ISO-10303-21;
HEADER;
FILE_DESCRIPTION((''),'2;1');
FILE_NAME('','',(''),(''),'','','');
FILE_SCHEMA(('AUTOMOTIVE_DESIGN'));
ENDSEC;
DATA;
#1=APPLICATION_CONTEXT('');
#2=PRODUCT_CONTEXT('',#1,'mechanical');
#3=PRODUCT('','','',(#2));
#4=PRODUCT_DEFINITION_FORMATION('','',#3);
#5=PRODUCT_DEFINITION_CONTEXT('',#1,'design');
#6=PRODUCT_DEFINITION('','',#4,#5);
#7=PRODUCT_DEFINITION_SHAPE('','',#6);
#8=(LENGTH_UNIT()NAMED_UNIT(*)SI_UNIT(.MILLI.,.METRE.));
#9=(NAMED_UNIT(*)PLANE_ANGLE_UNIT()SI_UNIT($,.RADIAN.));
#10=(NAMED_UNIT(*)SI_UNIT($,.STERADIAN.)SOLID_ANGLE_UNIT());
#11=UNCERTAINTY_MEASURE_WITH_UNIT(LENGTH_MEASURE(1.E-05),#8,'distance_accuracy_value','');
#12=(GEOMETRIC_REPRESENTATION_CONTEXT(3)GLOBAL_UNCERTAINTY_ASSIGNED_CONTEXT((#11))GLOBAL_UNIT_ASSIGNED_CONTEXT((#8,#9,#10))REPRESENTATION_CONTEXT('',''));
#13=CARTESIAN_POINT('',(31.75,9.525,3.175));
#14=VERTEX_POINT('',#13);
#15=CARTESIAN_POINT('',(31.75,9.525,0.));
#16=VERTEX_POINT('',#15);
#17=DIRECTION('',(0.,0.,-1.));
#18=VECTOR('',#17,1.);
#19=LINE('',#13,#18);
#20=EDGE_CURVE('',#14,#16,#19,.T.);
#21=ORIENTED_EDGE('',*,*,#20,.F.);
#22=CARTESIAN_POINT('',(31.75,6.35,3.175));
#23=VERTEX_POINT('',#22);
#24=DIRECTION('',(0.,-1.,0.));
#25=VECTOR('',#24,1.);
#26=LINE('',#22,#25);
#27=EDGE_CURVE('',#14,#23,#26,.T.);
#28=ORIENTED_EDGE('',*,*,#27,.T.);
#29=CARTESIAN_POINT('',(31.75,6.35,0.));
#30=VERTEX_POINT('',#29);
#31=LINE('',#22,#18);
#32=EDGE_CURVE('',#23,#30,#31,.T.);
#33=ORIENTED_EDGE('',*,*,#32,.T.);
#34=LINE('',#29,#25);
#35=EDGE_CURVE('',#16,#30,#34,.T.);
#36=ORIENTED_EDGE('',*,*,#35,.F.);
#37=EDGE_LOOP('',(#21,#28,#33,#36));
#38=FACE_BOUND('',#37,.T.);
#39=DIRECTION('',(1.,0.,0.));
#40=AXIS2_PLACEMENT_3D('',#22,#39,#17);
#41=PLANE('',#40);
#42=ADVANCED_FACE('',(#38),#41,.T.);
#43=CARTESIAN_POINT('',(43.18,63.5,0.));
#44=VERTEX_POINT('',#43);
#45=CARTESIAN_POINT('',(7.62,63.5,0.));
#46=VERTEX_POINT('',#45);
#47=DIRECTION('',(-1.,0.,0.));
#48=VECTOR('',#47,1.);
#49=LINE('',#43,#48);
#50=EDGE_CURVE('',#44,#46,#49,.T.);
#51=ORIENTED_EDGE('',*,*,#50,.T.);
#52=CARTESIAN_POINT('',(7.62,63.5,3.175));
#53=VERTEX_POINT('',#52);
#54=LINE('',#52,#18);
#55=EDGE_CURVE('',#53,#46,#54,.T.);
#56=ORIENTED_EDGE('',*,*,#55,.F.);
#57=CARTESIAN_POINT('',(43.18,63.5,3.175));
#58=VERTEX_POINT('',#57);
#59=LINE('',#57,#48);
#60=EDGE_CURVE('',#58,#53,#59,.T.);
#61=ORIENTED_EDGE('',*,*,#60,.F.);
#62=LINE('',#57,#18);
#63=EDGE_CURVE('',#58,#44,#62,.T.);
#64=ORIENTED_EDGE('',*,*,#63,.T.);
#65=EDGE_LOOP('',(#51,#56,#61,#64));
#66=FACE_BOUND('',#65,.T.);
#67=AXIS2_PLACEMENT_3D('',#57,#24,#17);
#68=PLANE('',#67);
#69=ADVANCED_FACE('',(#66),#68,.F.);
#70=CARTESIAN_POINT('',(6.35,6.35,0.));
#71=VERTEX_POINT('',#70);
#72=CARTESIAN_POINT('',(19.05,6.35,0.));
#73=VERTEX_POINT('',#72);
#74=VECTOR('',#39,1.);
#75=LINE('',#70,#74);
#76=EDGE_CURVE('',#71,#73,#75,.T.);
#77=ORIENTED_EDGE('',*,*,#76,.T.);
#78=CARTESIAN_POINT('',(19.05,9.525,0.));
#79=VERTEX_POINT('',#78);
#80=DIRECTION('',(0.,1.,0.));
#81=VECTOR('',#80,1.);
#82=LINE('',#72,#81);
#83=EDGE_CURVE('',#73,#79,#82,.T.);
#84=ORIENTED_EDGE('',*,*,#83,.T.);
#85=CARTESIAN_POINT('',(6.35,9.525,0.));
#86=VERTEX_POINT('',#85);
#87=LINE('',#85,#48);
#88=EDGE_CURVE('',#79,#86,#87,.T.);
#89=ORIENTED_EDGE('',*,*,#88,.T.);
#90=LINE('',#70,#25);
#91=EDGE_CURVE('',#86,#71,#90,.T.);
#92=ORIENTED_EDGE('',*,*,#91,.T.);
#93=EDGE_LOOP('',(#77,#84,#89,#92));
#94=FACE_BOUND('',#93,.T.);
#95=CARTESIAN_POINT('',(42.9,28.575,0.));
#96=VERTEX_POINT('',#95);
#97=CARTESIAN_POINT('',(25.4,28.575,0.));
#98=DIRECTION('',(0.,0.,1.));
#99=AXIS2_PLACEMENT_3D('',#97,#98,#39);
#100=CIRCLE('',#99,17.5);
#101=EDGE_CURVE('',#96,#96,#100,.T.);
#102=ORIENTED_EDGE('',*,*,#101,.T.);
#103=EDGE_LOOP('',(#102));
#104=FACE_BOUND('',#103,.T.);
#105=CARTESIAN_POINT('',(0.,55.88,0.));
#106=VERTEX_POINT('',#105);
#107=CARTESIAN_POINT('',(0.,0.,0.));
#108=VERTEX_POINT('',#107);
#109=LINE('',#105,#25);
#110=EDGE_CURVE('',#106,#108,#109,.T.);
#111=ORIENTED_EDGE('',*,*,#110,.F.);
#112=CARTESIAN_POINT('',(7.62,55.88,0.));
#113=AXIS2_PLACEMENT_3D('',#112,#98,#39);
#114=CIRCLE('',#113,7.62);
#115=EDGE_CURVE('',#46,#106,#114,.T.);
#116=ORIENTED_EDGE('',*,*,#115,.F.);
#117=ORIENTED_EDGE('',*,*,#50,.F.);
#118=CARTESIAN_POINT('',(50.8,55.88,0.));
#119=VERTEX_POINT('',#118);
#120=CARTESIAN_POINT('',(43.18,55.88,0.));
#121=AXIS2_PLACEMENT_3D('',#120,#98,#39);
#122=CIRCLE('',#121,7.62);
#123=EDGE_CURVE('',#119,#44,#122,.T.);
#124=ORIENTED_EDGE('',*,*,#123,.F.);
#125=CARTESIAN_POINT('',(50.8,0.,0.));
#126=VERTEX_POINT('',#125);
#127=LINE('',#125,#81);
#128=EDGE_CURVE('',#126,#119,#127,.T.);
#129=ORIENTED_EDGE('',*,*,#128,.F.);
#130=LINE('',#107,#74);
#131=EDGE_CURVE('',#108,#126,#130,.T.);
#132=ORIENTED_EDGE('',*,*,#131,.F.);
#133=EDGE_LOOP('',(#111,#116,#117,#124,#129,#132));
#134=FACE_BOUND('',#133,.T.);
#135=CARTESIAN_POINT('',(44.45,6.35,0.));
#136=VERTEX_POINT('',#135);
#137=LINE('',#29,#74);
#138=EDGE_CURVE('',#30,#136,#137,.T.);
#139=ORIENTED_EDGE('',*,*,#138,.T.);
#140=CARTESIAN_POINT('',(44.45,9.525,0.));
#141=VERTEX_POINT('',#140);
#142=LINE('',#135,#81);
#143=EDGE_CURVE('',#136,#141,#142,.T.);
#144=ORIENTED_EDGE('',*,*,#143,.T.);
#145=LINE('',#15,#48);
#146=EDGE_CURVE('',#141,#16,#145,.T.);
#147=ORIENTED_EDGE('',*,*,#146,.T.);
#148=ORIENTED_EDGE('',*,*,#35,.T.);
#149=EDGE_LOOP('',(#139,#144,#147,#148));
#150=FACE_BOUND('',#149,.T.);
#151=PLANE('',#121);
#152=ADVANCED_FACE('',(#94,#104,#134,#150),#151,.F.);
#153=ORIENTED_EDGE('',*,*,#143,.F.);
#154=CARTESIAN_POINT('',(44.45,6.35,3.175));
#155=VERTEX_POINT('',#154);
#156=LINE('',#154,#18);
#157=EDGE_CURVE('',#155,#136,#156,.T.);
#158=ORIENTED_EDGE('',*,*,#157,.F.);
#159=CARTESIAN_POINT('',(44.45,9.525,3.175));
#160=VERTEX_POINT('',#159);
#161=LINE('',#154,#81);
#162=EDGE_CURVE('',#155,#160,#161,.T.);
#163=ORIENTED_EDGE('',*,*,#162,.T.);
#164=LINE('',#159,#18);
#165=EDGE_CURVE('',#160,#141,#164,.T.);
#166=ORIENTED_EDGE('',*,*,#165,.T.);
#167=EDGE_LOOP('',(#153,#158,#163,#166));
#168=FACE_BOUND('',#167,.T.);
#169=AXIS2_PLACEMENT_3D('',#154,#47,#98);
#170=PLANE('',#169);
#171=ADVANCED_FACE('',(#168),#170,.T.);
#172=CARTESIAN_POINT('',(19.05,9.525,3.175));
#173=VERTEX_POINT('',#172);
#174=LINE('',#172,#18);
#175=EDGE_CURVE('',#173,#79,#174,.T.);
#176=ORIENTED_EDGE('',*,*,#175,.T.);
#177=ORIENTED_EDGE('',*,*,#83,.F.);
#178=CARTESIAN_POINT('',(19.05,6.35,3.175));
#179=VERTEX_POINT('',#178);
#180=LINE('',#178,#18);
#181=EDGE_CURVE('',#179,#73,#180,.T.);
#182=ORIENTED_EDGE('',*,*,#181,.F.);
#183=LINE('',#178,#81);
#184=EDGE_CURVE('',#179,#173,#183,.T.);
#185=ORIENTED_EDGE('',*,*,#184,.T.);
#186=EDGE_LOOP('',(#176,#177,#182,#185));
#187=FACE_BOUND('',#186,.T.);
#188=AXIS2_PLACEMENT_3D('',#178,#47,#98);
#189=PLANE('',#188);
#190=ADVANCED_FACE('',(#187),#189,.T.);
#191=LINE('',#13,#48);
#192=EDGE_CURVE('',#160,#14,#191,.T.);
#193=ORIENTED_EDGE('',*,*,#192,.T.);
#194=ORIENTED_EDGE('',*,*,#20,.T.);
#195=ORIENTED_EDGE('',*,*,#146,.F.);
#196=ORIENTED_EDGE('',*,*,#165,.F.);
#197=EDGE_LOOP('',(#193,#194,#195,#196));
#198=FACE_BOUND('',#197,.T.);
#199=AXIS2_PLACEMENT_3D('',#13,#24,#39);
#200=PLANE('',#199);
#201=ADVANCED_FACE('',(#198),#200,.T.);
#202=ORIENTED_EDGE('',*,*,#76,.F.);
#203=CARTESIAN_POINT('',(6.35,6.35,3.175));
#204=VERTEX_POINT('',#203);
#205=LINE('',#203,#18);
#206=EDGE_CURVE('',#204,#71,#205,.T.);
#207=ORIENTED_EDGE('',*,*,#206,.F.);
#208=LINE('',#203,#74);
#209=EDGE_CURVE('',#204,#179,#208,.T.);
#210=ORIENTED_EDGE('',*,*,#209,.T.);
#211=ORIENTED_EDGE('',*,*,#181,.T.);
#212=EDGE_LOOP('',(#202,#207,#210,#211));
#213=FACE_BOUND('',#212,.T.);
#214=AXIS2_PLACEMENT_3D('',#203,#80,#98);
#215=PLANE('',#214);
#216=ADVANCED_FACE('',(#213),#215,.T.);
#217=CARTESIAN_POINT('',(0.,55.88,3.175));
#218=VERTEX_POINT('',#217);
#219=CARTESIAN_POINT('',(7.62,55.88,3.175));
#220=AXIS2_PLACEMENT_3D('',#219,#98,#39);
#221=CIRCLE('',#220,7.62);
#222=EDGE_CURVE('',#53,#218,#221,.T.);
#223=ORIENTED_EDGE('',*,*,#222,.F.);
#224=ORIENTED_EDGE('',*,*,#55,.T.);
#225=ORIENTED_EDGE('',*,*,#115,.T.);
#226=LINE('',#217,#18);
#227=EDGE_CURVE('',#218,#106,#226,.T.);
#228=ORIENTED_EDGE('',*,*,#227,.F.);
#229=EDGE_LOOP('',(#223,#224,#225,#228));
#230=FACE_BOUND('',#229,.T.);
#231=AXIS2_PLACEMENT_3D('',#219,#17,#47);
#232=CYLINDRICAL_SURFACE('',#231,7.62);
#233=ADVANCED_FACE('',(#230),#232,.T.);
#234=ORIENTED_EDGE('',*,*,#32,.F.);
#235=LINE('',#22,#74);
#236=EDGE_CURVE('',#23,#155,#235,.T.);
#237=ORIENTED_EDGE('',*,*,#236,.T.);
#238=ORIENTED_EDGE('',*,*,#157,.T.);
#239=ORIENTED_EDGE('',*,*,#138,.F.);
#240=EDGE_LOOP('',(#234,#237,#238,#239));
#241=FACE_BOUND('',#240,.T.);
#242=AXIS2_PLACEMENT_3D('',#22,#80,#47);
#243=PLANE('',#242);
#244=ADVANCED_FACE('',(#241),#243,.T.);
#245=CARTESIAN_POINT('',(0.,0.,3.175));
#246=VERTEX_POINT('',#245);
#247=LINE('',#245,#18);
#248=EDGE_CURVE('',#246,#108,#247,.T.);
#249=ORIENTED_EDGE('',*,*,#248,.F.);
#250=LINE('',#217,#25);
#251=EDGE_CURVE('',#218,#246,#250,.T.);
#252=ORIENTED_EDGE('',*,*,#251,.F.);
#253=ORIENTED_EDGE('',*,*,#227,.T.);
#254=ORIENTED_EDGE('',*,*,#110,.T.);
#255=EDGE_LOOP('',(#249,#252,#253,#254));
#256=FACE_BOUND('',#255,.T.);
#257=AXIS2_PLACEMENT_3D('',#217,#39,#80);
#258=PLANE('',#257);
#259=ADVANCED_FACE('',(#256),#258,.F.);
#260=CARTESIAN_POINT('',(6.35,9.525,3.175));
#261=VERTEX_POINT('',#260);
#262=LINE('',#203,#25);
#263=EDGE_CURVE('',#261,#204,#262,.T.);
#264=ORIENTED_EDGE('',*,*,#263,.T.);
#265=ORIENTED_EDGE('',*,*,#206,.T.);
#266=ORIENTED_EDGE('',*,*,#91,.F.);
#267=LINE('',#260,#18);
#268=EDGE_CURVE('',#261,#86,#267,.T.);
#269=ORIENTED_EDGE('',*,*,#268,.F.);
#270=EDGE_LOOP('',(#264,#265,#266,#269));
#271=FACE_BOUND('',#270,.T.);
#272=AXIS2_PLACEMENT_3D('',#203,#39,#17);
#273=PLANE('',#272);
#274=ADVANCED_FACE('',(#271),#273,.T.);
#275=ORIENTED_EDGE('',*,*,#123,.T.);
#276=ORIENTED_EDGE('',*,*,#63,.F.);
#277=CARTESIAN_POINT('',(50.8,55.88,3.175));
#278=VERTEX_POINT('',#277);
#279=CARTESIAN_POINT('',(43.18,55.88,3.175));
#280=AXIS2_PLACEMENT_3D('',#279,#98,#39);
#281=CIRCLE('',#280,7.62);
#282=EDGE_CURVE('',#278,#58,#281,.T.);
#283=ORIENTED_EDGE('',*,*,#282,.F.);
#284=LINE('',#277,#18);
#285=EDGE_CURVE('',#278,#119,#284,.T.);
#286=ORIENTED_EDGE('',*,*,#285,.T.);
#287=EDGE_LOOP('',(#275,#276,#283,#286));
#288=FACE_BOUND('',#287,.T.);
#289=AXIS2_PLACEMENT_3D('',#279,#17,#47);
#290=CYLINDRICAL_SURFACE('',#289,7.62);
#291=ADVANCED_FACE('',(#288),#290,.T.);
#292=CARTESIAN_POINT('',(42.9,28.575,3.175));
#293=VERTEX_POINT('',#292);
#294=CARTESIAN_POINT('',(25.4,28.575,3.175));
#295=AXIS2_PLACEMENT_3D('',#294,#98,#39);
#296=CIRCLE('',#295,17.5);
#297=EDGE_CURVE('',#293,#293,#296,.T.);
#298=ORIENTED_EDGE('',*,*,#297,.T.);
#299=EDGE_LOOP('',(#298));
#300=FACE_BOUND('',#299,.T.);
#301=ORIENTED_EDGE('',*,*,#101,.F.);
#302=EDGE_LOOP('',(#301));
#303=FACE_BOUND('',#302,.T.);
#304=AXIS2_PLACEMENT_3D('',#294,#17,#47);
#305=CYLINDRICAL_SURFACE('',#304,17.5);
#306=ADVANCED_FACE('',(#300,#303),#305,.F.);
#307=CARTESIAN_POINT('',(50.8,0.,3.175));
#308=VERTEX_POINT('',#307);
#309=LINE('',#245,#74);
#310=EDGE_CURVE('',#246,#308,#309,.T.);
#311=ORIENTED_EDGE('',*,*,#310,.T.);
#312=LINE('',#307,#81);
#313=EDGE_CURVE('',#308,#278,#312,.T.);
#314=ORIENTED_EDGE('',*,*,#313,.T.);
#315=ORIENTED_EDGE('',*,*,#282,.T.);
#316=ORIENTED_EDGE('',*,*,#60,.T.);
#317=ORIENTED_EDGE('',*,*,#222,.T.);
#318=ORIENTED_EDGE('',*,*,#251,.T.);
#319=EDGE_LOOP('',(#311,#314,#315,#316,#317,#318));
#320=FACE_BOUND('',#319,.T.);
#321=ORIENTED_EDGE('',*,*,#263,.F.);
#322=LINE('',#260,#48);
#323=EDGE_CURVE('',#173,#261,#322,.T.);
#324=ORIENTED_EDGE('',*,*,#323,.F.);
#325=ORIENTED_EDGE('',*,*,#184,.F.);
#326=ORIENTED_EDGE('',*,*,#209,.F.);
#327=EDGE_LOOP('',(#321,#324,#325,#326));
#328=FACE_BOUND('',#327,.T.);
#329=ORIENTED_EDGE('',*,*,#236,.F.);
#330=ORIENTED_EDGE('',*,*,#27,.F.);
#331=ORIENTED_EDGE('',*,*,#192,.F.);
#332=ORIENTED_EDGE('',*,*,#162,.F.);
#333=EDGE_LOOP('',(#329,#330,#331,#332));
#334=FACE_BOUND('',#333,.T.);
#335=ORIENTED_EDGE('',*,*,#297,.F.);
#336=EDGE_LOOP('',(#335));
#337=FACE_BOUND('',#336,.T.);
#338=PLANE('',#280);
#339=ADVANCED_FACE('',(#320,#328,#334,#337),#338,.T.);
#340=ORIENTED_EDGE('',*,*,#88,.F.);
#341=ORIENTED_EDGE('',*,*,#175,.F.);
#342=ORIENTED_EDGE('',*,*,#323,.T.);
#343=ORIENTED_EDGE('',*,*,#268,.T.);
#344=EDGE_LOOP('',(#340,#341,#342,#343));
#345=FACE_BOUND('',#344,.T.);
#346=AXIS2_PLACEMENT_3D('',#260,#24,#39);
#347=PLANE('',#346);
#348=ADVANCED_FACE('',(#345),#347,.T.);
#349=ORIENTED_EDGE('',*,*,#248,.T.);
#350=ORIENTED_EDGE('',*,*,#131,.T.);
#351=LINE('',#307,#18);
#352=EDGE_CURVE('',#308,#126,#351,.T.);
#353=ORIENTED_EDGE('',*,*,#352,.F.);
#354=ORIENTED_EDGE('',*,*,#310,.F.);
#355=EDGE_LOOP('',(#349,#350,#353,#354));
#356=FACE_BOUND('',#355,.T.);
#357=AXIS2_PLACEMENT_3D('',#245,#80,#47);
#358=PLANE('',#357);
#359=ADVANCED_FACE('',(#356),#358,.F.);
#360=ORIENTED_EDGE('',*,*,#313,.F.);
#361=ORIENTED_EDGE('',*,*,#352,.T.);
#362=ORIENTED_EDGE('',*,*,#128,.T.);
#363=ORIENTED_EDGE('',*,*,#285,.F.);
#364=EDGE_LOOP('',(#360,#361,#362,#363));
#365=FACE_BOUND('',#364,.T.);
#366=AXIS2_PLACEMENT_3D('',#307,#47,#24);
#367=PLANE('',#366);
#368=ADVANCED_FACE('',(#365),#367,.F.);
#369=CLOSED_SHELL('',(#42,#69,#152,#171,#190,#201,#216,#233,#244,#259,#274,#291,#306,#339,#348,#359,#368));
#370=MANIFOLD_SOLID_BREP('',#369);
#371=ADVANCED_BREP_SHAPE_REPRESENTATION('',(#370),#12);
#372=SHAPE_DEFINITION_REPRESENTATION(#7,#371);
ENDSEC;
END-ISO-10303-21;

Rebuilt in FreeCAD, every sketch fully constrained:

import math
import FreeCAD as App
import Part
import Sketcher
from FreeCAD import Vector
Q = App.Units.Quantity


def add_polygon(sketch, points):
    """Adds a closed chain of lines whose ends are joined by coincident constraints."""
    first, n = sketch.GeometryCount, len(points)
    for a, b in zip(points, points[1:] + points[:1]):
        sketch.addGeometry(Part.LineSegment(App.Vector(*a, 0), App.Vector(*b, 0)), False)
    for i in range(n):
        sketch.addConstraint(Sketcher.Constraint("Coincident", first + i, 2, first + (i + 1) % n, 1))

doc = App.newDocument("Part")
body = doc.addObject("PartDesign::Body", "Body")

# Sketch on XY plane
sketch1 = doc.addObject("Sketcher::SketchObject", "Sketch")
body.addObject(sketch1)
sketch1.AttachmentSupport = (doc.XY_Plane, [""])
sketch1.MapMode = "FlatFace"
sketch1.addGeometry(Part.LineSegment(Vector(0, 0, 0), Vector(50.8, 0, 0)), False)  # 0
sketch1.addGeometry(Part.LineSegment(Vector(50.8, 0, 0), Vector(50.8, 55.9, 0)), False)  # 1
sketch1.addGeometry(Part.ArcOfCircle(Part.Circle(Vector(43.2, 55.9, 0), Vector(0, 0, 1), 7.6), math.radians(0), math.radians(90)), False)  # 2
sketch1.addGeometry(Part.LineSegment(Vector(43.2, 63.5, 0), Vector(7.6, 63.5, 0)), False)  # 3
sketch1.addGeometry(Part.ArcOfCircle(Part.Circle(Vector(7.6, 55.9, 0), Vector(0, 0, 1), 7.6), math.radians(90), math.radians(180)), False)  # 4
sketch1.addGeometry(Part.LineSegment(Vector(0, 55.9, 0), Vector(0, 0, 0)), False)  # 5
add_polygon(sketch1, [(19.1, 6.3), (6.3, 6.3), (6.3, 9.5), (19.1, 9.5)])  # lines 6-9
add_polygon(sketch1, [(44.5, 6.3), (31.8, 6.3), (31.8, 9.5), (44.5, 9.5)])  # lines 10-13
sketch1.addGeometry(Part.Circle(Vector(25.4, 28.6, 0), Vector(0, 0, 1), 17.5), False)  # 14
sketch1.addConstraint([
    Sketcher.Constraint("Coincident", 0, 2, 1, 1),
    Sketcher.Constraint("Tangent", 1, 2, 2, 1),
    Sketcher.Constraint("Tangent", 2, 2, 3, 1),
    Sketcher.Constraint("Tangent", 3, 2, 4, 1),
    Sketcher.Constraint("Tangent", 4, 2, 5, 1),
    Sketcher.Constraint("Coincident", 5, 2, 0, 1),
    Sketcher.Constraint("Horizontal", 0),
    Sketcher.Constraint("Vertical", 1),
    Sketcher.Constraint("Horizontal", 3),
    Sketcher.Constraint("Vertical", 5),
    Sketcher.Constraint("Horizontal", 6),
    Sketcher.Constraint("Vertical", 7),
    Sketcher.Constraint("Horizontal", 8),
    Sketcher.Constraint("Vertical", 9),
    Sketcher.Constraint("Horizontal", 10),
    Sketcher.Constraint("Vertical", 11),
    Sketcher.Constraint("Horizontal", 12),
    Sketcher.Constraint("Vertical", 13),
    Sketcher.Constraint("Coincident", 5, 2, -1, 1),
    Sketcher.Constraint("Equal", 2, 4),
    Sketcher.Constraint("Horizontal", 9, 2, 10, 2),
    Sketcher.Constraint("Horizontal", 8, 2, 11, 2),
    Sketcher.Constraint("Equal", 8, 10),
    Sketcher.Constraint("Radius", 2, Q("0.3 in")),
    Sketcher.Constraint("DistanceX", 0, 1, 0, 2, Q("2 in")),
    Sketcher.Constraint("DistanceX", 6, 2, 6, 1, Q("0.5 in")),
    Sketcher.Constraint("DistanceY", 1, 1, 1, 2, Q("2.2 in")),
    Sketcher.Constraint("DistanceX", -1, 1, 14, 3, Q("1 in")),
    Sketcher.Constraint("DistanceX", 6, 2, 10, 2, Q("1 in")),
    Sketcher.Constraint("Diameter", 14, 35.0),
    Sketcher.Constraint("DistanceY", 7, 1, 7, 2, Q("0.125 in")),
    Sketcher.Constraint("DistanceX", -1, 1, 6, 2, Q("0.25 in")),
    Sketcher.Constraint("DistanceY", -1, 1, 6, 2, Q("0.25 in")),
    Sketcher.Constraint("DistanceY", 7, 2, 14, 3, Q("0.75 in")),
])
pad1 = doc.addObject("PartDesign::Pad", "Pad")
body.addObject(pad1)
pad1.Profile = sketch1
pad1.Length = Q("0.125 in")

doc.recompute()
